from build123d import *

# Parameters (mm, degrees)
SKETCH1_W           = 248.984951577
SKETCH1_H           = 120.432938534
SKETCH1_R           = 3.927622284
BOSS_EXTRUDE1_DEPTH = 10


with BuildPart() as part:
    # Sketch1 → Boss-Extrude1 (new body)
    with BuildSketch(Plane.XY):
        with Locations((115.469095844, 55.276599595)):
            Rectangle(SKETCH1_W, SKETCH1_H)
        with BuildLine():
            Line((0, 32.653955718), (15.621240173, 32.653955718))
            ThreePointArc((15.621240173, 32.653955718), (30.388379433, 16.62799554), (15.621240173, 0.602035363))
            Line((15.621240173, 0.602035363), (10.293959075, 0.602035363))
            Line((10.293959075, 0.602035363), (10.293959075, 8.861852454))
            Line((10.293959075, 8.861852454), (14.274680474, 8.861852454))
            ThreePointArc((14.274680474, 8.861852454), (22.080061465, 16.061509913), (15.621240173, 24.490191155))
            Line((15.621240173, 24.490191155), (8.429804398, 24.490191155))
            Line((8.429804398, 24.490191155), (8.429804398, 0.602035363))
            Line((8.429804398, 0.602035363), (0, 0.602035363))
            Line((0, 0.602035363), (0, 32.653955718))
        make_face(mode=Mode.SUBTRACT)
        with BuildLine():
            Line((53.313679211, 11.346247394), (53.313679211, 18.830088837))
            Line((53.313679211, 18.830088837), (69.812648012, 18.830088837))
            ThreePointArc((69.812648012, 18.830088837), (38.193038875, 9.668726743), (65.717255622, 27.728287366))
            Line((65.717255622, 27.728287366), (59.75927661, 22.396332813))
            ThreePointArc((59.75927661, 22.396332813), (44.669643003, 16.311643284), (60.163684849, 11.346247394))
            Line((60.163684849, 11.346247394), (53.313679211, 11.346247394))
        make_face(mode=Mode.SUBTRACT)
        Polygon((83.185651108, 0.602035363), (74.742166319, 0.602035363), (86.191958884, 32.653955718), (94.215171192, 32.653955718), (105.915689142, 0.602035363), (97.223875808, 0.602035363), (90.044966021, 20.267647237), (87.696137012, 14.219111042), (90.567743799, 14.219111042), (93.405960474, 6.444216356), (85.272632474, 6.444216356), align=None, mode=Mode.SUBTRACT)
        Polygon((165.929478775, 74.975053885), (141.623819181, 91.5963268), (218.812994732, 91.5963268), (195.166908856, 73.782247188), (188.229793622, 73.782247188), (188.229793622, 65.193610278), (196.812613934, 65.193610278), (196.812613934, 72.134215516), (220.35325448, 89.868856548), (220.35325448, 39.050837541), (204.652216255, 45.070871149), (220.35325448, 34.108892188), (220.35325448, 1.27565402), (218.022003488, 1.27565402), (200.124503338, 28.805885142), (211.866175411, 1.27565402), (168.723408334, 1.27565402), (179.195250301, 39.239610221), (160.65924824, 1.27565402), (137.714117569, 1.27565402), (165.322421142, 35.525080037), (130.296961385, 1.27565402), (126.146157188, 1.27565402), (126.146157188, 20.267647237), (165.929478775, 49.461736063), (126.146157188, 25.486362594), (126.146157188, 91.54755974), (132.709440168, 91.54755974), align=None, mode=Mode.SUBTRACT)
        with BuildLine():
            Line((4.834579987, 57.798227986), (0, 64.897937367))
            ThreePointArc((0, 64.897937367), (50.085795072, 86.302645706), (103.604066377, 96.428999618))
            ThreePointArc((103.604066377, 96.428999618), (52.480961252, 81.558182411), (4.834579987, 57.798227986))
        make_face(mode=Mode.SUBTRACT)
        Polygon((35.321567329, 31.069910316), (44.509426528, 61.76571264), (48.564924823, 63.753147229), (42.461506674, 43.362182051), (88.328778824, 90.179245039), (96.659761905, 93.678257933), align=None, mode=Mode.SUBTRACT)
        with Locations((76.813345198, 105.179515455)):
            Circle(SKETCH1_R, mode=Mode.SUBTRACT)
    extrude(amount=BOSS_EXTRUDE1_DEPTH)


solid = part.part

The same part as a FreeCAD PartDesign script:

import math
import FreeCAD as App
import Part
import Sketcher

V = App.Vector


def add_polygon(sketch, points):
    """Adds a closed chain of lines whose ends are joined by coincident constraints."""
    first, n = sketch.GeometryCount, len(points)
    for a, b in zip(points, points[1:] + points[:1]):
        sketch.addGeometry(Part.LineSegment(App.Vector(*a, 0), App.Vector(*b, 0)), False)
    for i in range(n):
        sketch.addConstraint(Sketcher.Constraint("Coincident", first + i, 2, first + (i + 1) % n, 1))

doc = App.newDocument("Part")
params = doc.addObject("Spreadsheet::Sheet", "Params")
for row, (alias, value) in enumerate([
    ("pad1_length", "10 mm"),
], start=1):
    params.set(f"A{row}", alias)
    params.set(f"B{row}", "=" + value)
    params.setAlias(f"B{row}", alias)

body = doc.addObject("PartDesign::Body", "Body")

sketch1 = doc.addObject("Sketcher::SketchObject", "Sketch")
body.addObject(sketch1)
sketch1.AttachmentSupport = (doc.XY_Plane, [""])
sketch1.MapMode = "FlatFace"
add_polygon(sketch1, [(-9.02338, 115.493069), (-9.02338, -4.93987), (239.961572, -4.93987), (239.961572, 115.493069)])
sketch1.addGeometry(Part.LineSegment(V(0, 0.602035, 0), V(0, 32.653956, 0)), False)
sketch1.addGeometry(Part.LineSegment(V(0, 32.653956, 0), V(15.62124, 32.653956, 0)), False)
sketch1.addGeometry(Part.ArcOfCircle(Part.Circle(V(14.308765, 16.627996, 0), V(0, 0, 1), 16.079614), math.radians(-85.318108), math.radians(85.318108)), False)
sketch1.addGeometry(Part.LineSegment(V(15.62124, 0.602035, 0), V(10.293959, 0.602035, 0)), False)
sketch1.addGeometry(Part.LineSegment(V(10.293959, 0.602035, 0), V(10.293959, 8.861852, 0)), False)
sketch1.addGeometry(Part.LineSegment(V(10.293959, 8.861852, 0), V(14.27468, 8.861852, 0)), False)
sketch1.addGeometry(Part.ArcOfCircle(Part.Circle(V(14.233278, 16.7376, 0), V(0, 0, 1), 7.875856), math.radians(-89.6988), math.radians(79.849754)), False)
sketch1.addGeometry(Part.LineSegment(V(15.62124, 24.490191, 0), V(8.429804, 24.490191, 0)), False)
sketch1.addGeometry(Part.LineSegment(V(8.429804, 24.490191, 0), V(8.429804, 0.602035, 0)), False)
sketch1.addGeometry(Part.LineSegment(V(8.429804, 0.602035, 0), V(0, 0.602035, 0)), False)
sketch1.addGeometry(Part.LineSegment(V(60.163685, 11.346247, 0), V(53.313679, 11.346247, 0)), False)
sketch1.addGeometry(Part.LineSegment(V(53.313679, 11.346247, 0), V(53.313679, 18.830089, 0)), False)
sketch1.addGeometry(Part.LineSegment(V(53.313679, 18.830089, 0), V(69.812648, 18.830089, 0)), False)
sketch1.addGeometry(Part.ArcOfCircle(Part.Circle(V(53.313679, 16.627996, 0), V(0, 0, 1), 16.645275), math.radians(41.826211), math.radians(367.602255)), False)
sketch1.addGeometry(Part.LineSegment(V(65.717256, 27.728287, 0), V(59.759277, 22.396333, 0)), False)
sketch1.addGeometry(Part.ArcOfCircle(Part.Circle(V(53.313679, 16.627996, 0), V(0, 0, 1), 8.649823), math.radians(41.826211), math.radians(322.365711)), False)
add_polygon(sketch1, [(85.272632, 6.444216), (83.185651, 0.602035), (74.742166, 0.602035), (86.191959, 32.653956), (94.215171, 32.653956), (105.915689, 0.602035), (97.223876, 0.602035), (90.044966, 20.267647), (87.696137, 14.219111), (90.567744, 14.219111), (93.40596, 6.444216)])
add_polygon(sketch1, [(132.70944, 91.54756), (165.929479, 74.975054), (141.623819, 91.596327), (218.812995, 91.596327), (195.166909, 73.782247), (188.229794, 73.782247), (188.229794, 65.19361), (196.812614, 65.19361), (196.812614, 72.134216), (220.353254, 89.868857), (220.353254, 39.050838), (204.652216, 45.070871), (220.353254, 34.108892), (220.353254, 1.275654), (218.022003, 1.275654), (200.124503, 28.805885), (211.866175, 1.275654), (168.723408, 1.275654), (179.19525, 39.23961), (160.659248, 1.275654), (137.714118, 1.275654), (165.322421, 35.52508), (130.296961, 1.275654), (126.146157, 1.275654), (126.146157, 20.267647), (165.929479, 49.461736), (126.146157, 25.486363), (126.146157, 91.54756)])
sketch1.addGeometry(Part.ArcOfCircle(Part.Circle(V(160.659248, -195.027384, 0), V(0, 0, 1), 296.988413), math.radians(101.076092), math.radians(121.646882)), False)
sketch1.addGeometry(Part.LineSegment(V(4.83458, 57.798228, 0), V(0, 64.897937, 0)), False)
sketch1.addGeometry(Part.ArcOfCircle(Part.Circle(V(123.355769, -154.446214, 0), V(0, 0, 1), 251.651549), math.radians(94.501679), math.radians(119.35273)), False)
add_polygon(sketch1, [(96.659762, 93.678258), (35.321567, 31.06991), (44.509427, 61.765713), (48.564925, 63.753147), (42.461507, 43.362182), (88.328779, 90.179245)])
sketch1.addGeometry(Part.Circle(V(76.813345, 105.179515, 0), V(0, 0, 1), 3.927622), False)
sketch1.addConstraint(Sketcher.Constraint("Coincident", 4, 2, 5, 1))
sketch1.addConstraint(Sketcher.Constraint("Coincident", 5, 2, 6, 2))
sketch1.addConstraint(Sketcher.Constraint("Coincident", 6, 1, 7, 1))
sketch1.addConstraint(Sketcher.Constraint("Coincident", 7, 2, 8, 1))
sketch1.addConstraint(Sketcher.Constraint("Coincident", 8, 2, 9, 1))
sketch1.addConstraint(Sketcher.Constraint("Coincident", 9, 2, 10, 1))
sketch1.addConstraint(Sketcher.Constraint("Coincident", 10, 2, 11, 1))
sketch1.addConstraint(Sketcher.Constraint("Coincident", 11, 2, 12, 1))
sketch1.addConstraint(Sketcher.Constraint("Coincident", 12, 2, 13, 1))
sketch1.addConstraint(Sketcher.Constraint("Coincident", 13, 2, 4, 1))
sketch1.addConstraint(Sketcher.Constraint("Coincident", 14, 2, 15, 1))
sketch1.addConstraint(Sketcher.Constraint("Coincident", 15, 2, 16, 1))
sketch1.addConstraint(Sketcher.Constraint("Coincident", 16, 2, 17, 2))
sketch1.addConstraint(Sketcher.Constraint("Coincident", 17, 1, 18, 1))
sketch1.addConstraint(Sketcher.Constraint("Coincident", 18, 2, 19, 1))
sketch1.addConstraint(Sketcher.Constraint("Coincident", 19, 2, 14, 1))
sketch1.addConstraint(Sketcher.Constraint("Coincident", 59, 2, 60, 1))
sketch1.addConstraint(Sketcher.Constraint("Coincident", 60, 2, 61, 2))
sketch1.addConstraint(Sketcher.Constraint("Coincident", 61, 1, 59, 1))
sketch1.addConstraint(Sketcher.Constraint("Vertical", 0))
sketch1.addConstraint(Sketcher.Constraint("Horizontal", 1))
sketch1.addConstraint(Sketcher.Constraint("Vertical", 2))
sketch1.addConstraint(Sketcher.Constraint("Horizontal", 3))
sketch1.addConstraint(Sketcher.Constraint("Vertical", 4))
sketch1.addConstraint(Sketcher.Constraint("Horizontal", 5))
sketch1.addConstraint(Sketcher.Constraint("Horizontal", 7))
sketch1.addConstraint(Sketcher.Constraint("Vertical", 8))
sketch1.addConstraint(Sketcher.Constraint("Horizontal", 9))
sketch1.addConstraint(Sketcher.Constraint("Horizontal", 11))
sketch1.addConstraint(Sketcher.Constraint("Vertical", 12))
sketch1.addConstraint(Sketcher.Constraint("Horizontal", 13))
sketch1.addConstraint(Sketcher.Constraint("Horizontal", 14))
sketch1.addConstraint(Sketcher.Constraint("Vertical", 15))
sketch1.addConstraint(Sketcher.Constraint("Horizontal", 16))
sketch1.addConstraint(Sketcher.Constraint("Horizontal", 21))
sketch1.addConstraint(Sketcher.Constraint("Horizontal", 23))
sketch1.addConstraint(Sketcher.Constraint("Horizontal", 25))
sketch1.addConstraint(Sketcher.Constraint("Horizontal", 28))
sketch1.addConstraint(Sketcher.Constraint("Horizontal", 30))
sketch1.addConstraint(Sketcher.Constraint("Horizontal", 33))
sketch1.addConstraint(Sketcher.Constraint("Horizontal", 35))
sketch1.addConstraint(Sketcher.Constraint("Vertical", 36))
sketch1.addConstraint(Sketcher.Constraint("Horizontal", 37))
sketch1.addConstraint(Sketcher.Constraint("Vertical", 38))
sketch1.addConstraint(Sketcher.Constraint("Vertical", 40))
sketch1.addConstraint(Sketcher.Constraint("Vertical", 43))
sketch1.addConstraint(Sketcher.Constraint("Horizontal", 44))
sketch1.addConstraint(Sketcher.Constraint("Horizontal", 47))
sketch1.addConstraint(Sketcher.Constraint("Horizontal", 50))
sketch1.addConstraint(Sketcher.Constraint("Horizontal", 53))
sketch1.addConstraint(Sketcher.Constraint("Vertical", 54))
sketch1.addConstraint(Sketcher.Constraint("Vertical", 57))
sketch1.addConstraint(Sketcher.Constraint("Horizontal", 58))
sketch1.addConstraint(Sketcher.Constraint("Coincident", 19, 3, 17, 3))
sketch1.addConstraint(Sketcher.Constraint("PointOnObject", 4, 2, -2))
sketch1.addConstraint(Sketcher.Constraint("PointOnObject", 60, 2, -2))
sketch1.addConstraint(Sketcher.Constraint("Parallel", 20, 22))
sketch1.addConstraint(Sketcher.Constraint("Parallel", 24, 26))
sketch1.addConstraint(Sketcher.Constraint("Parallel", 26, 29))
sketch1.addConstraint(Sketcher.Constraint("Parallel", 34, 39))
sketch1.addConstraint(Sketcher.Constraint("Parallel", 63, 65))
sketch1.addConstraint(Sketcher.Constraint("Parallel", 62, 66))
sketch1.addConstraint(Sketcher.Constraint("Horizontal", 6, 3, 17, 3))
sketch1.addConstraint(Sketcher.Constraint("Horizontal", 7, 2, 12, 2))
sketch1.addConstraint(Sketcher.Constraint("Horizontal", 13, 2, 20, 2))
sketch1.addConstraint(Sketcher.Constraint("Horizontal", 5, 2, 22, 2))
sketch1.addConstraint(Sketcher.Constraint("Horizontal", 21, 2, 24, 2))
sketch1.addConstraint(Sketcher.Constraint("Horizontal", 44, 2, 46, 2))
sketch1.addConstraint(Sketcher.Constraint("Horizontal", 47, 2, 49, 2))
sketch1.addConstraint(Sketcher.Constraint("Horizontal", 50, 2, 52, 2))
sketch1.addConstraint(Sketcher.Constraint("Horizontal", 26, 2, 54, 2))
sketch1.addConstraint(Sketcher.Constraint("Vertical", 5, 2, 6, 1))
sketch1.addConstraint(Sketcher.Constraint("Vertical", 6, 1, 10, 2))
sketch1.addConstraint(Sketcher.Constraint("Vertical", 19, 3, 14, 2))
sketch1.addConstraint(Sketcher.Constraint("Vertical", 40, 2, 42, 2))
sketch1.addConstraint(Sketcher.Constraint("Vertical", 59, 3, 49, 2))
sketch1.addConstraint(Sketcher.Constraint("Vertical", 31, 2, 55, 2))
sketch1.addConstraint(Sketcher.Constraint("Vertical", 54, 2, 56, 2))
sketch1.addConstraint(Sketcher.Constraint("Radius", 61, 251.651549))
sketch1.addConstraint(Sketcher.Constraint("Diameter", 68, 7.855245))
sketch1.addConstraint(Sketcher.Constraint("DistanceY", -1, 1, 61, 1, 96.429))
sketch1.addConstraint(Sketcher.Constraint("Radius", 6, 16.079614))
sketch1.addConstraint(Sketcher.Constraint("Radius", 10, 7.875856))
sketch1.addConstraint(Sketcher.Constraint("Radius", 17, 16.645275))
sketch1.addConstraint(Sketcher.Constraint("Radius", 19, 8.649823))
sketch1.addConstraint(Sketcher.Constraint("Radius", 59, 296.988413))
sketch1.addConstraint(Sketcher.Constraint("Distance", 64, 4.5163))
sketch1.addConstraint(Sketcher.Constraint("DistanceX", 1, 1, 1, 2, 248.984952))
sketch1.addConstraint(Sketcher.Constraint("DistanceX", 5, 1, 5, 2, 15.62124))
sketch1.addConstraint(Sketcher.Constraint("DistanceX", 7, 2, 7, 1, 5.327281))
sketch1.addConstraint(Sketcher.Constraint("DistanceX", 9, 1, 9, 2, 3.980721))
sketch1.addConstraint(Sketcher.Constraint("DistanceX", 16, 1, 16, 2, 16.498969))
sketch1.addConstraint(Sketcher.Constraint("DistanceX", 37, 1, 37, 2, 8.58282))
sketch1.addConstraint(Sketcher.Constraint("DistanceX", 44, 2, 44, 1, 2.331251))
sketch1.addConstraint(Sketcher.Constraint("DistanceX", 50, 2, 50, 1, 22.945131))
sketch1.addConstraint(Sketcher.Constraint("DistanceY", 0, 2, 0, 1, 120.432939))
sketch1.addConstraint(Sketcher.Constraint("DistanceY", 4, 1, 4, 2, 32.05192))
sketch1.addConstraint(Sketcher.Constraint("DistanceY", 15, 1, 15, 2, 7.483841))
sketch1.addConstraint(Sketcher.Constraint("DistanceY", 40, 2, 40, 1, 50.818019))
sketch1.addConstraint(Sketcher.Constraint("DistanceY", 43, 2, 43, 1, 32.833238))
sketch1.addConstraint(Sketcher.Constraint("DistanceY", -1, 1, 10, 3, 16.7376))
sketch1.addConstraint(Sketcher.Constraint("Distance", 22, 34.035619))
sketch1.addConstraint(Sketcher.Constraint("Distance", 24, 34.120781))
sketch1.addConstraint(Sketcher.Constraint("Distance", 26, 20.934972))
sketch1.addConstraint(Sketcher.Constraint("Distance", 27, 6.488589))
sketch1.addConstraint(Sketcher.Constraint("Distance", 31, 37.124371))
sketch1.addConstraint(Sketcher.Constraint("Distance", 41, 16.81557))
sketch1.addConstraint(Sketcher.Constraint("Distance", 42, 19.149088))
sketch1.addConstraint(Sketcher.Constraint("Distance", 48, 39.38174))
sketch1.addConstraint(Sketcher.Constraint("Distance", 49, 42.24743))
sketch1.addConstraint(Sketcher.Constraint("Distance", 51, 43.991381))
sketch1.addConstraint(Sketcher.Constraint("Distance", 65, 21.284811))
sketch1.addConstraint(Sketcher.Constraint("Distance", 67, 9.035949))
sketch1.addConstraint(Sketcher.Constraint("DistanceX", 11, 2, 11, 1, 7.191436))
sketch1.addConstraint(Sketcher.Constraint("DistanceX", 21, 2, 21, 1, 8.443485))
sketch1.addConstraint(Sketcher.Constraint("DistanceX", 23, 1, 23, 2, 8.023212))
sketch1.addConstraint(Sketcher.Constraint("DistanceX", 25, 2, 25, 1, 8.691813))
sketch1.addConstraint(Sketcher.Constraint("DistanceX", 28, 1, 28, 2, 2.871607))
sketch1.addConstraint(Sketcher.Constraint("DistanceX", 30, 2, 30, 1, 8.133328))
sketch1.addConstraint(Sketcher.Constraint("DistanceX", 33, 1, 33, 2, 77.189176))
sketch1.addConstraint(Sketcher.Constraint("DistanceX", 35, 2, 35, 1, 6.937115))
sketch1.addConstraint(Sketcher.Constraint("DistanceX", 47, 2, 47, 1, 43.142767))
sketch1.addConstraint(Sketcher.Constraint("DistanceX", 53, 2, 53, 1, 4.150804))
sketch1.addConstraint(Sketcher.Constraint("DistanceX", 58, 1, 58, 2, 6.563283))
sketch1.addConstraint(Sketcher.Constraint("DistanceY", 8, 1, 8, 2, 8.259817))
sketch1.addConstraint(Sketcher.Constraint("DistanceY", 12, 2, 12, 1, 23.888156))
sketch1.addConstraint(Sketcher.Constraint("DistanceY", 36, 2, 36, 1, 8.588637))
sketch1.addConstraint(Sketcher.Constraint("DistanceY", 38, 1, 38, 2, 6.940605))
sketch1.addConstraint(Sketcher.Constraint("DistanceY", 54, 1, 54, 2, 18.991993))
sketch1.addConstraint(Sketcher.Constraint("DistanceY", 57, 1, 57, 2, 66.061197))
sketch1.addConstraint(Sketcher.Constraint("DistanceX", -1, 1, 17, 3, 53.313679))
sketch1.addConstraint(Sketcher.Constraint("DistanceX", -1, 1, 59, 3, 160.659248))
sketch1.addConstraint(Sketcher.Constraint("DistanceX", -1, 1, 61, 3, 123.355769))
sketch1.addConstraint(Sketcher.Constraint("DistanceX", 0, 2, -1, 1, 9.02338))
sketch1.addConstraint(Sketcher.Constraint("DistanceY", 0, 2, -1, 1, 4.93987))
sketch1.addConstraint(Sketcher.Constraint("DistanceX", -1, 1, 20, 2, 83.185651))
sketch1.addConstraint(Sketcher.Constraint("DistanceY", -1, 1, 27, 2, 14.219111))
sketch1.addConstraint(Sketcher.Constraint("DistanceX", -1, 1, 31, 2, 165.929479))
sketch1.addConstraint(Sketcher.Constraint("DistanceX", -1, 1, 32, 2, 141.623819))
sketch1.addConstraint(Sketcher.Constraint("DistanceX", -1, 1, 34, 2, 195.166909))
sketch1.addConstraint(Sketcher.Constraint("DistanceY", -1, 1, 36, 2, 65.19361))
sketch1.addConstraint(Sketcher.Constraint("DistanceY", -1, 1, 41, 2, 45.070871))
sketch1.addConstraint(Sketcher.Constraint("DistanceX", -1, 1, 47, 2, 168.723408))
sketch1.addConstraint(Sketcher.Constraint("DistanceX", -1, 1, 51, 2, 165.322421))
sketch1.addConstraint(Sketcher.Constraint("DistanceX", -1, 1, 52, 2, 130.296961))
sketch1.addConstraint(Sketcher.Constraint("DistanceY", -1, 1, 57, 2, 91.54756))
sketch1.addConstraint(Sketcher.Constraint("DistanceX", -1, 1, 59, 2, 4.83458))
sketch1.addConstraint(Sketcher.Constraint("DistanceY", -1, 1, 62, 2, 31.06991))
sketch1.addConstraint(Sketcher.Constraint("DistanceX", -1, 1, 66, 2, 88.328779))
sketch1.addConstraint(Sketcher.Constraint("DistanceX", -1, 1, 67, 2, 96.659762))
sketch1.addConstraint(Sketcher.Constraint("Distance", 32, 29.445404))
sketch1.addConstraint(Sketcher.Constraint("Distance", 45, 32.836476))
sketch1.addConstraint(Sketcher.Constraint("Distance", 46, 29.929592))
sketch1.addConstraint(Sketcher.Constraint("Distance", 55, 49.345795))
sketch1.addConstraint(Sketcher.Constraint("Distance", 60, 8.589472))
sketch1.addConstraint(Sketcher.Constraint("Distance", 62, 87.648042))
sketch1.addConstraint(Sketcher.Constraint("Distance", 63, 32.041364))
sketch1.addConstraint(Sketcher.Constraint("Distance", 66, 65.541163))
sketch1.addConstraint(Sketcher.Constraint("DistanceX", -1, 1, 68, 3, 76.813345))
sketch1.addConstraint(Sketcher.Constraint("DistanceY", -1, 1, 68, 3, 105.179515))
sketch1.addConstraint(Sketcher.Constraint("DistanceX", -1, 1, 17, 1, 65.717256))
sketch1.addConstraint(Sketcher.Constraint("DistanceX", -1, 1, 18, 2, 59.759277))
sketch1.addConstraint(Sketcher.Constraint("DistanceX", -1, 1, 62, 2, 35.321567))
pad1 = doc.addObject("PartDesign::Pad", "Pad")
body.addObject(pad1)
pad1.Profile = sketch1
pad1.setExpression("Length", "Params.pad1_length")

doc.recompute()
